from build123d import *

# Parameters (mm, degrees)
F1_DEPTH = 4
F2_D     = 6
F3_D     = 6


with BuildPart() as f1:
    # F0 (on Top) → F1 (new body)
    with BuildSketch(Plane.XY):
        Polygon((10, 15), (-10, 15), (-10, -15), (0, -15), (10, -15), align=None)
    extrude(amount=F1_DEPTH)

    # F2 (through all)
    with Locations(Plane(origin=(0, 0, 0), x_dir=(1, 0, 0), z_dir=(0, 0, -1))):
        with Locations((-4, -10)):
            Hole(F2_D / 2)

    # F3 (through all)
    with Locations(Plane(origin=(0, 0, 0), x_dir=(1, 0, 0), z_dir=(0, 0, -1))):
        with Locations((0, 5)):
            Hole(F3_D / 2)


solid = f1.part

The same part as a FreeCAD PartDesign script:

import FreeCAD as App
import Part
import Sketcher
Q = App.Units.Quantity


def add_polygon(sketch, points):
    """Adds a closed chain of lines whose ends are joined by coincident constraints."""
    first, n = sketch.GeometryCount, len(points)
    for a, b in zip(points, points[1:] + points[:1]):
        sketch.addGeometry(Part.LineSegment(App.Vector(*a, 0), App.Vector(*b, 0)), False)
    for i in range(n):
        sketch.addConstraint(Sketcher.Constraint("Coincident", first + i, 2, first + (i + 1) % n, 1))

doc = App.newDocument("Part")
body = doc.addObject("PartDesign::Body", "Body")

# Sketch on XY plane
sketch1 = body.newObject("Sketcher::SketchObject", "Sketch")
sketch1.AttachmentSupport = (doc.getObject("XY_Plane"), [""])
sketch1.MapMode = "FlatFace"
add_polygon(sketch1, [(10, 15), (-10, 15), (-10, -15), (10, -15)])  # lines 0-3
sketch1.addConstraint([
    Sketcher.Constraint("Horizontal", 0),
    Sketcher.Constraint("Vertical", 1),
    Sketcher.Constraint("Horizontal", 2),
    Sketcher.Constraint("Vertical", 3),
    Sketcher.Constraint("Symmetric", 0, 2, 2, 2, -1, 1),
    Sketcher.Constraint("DistanceX", 0, 2, 0, 1, Q("20 mm")),
    Sketcher.Constraint("DistanceY", 1, 2, 1, 1, Q("30 mm")),
])
pad1 = body.newObject("PartDesign::Pad", "Pad")
pad1.Profile = sketch1
pad1.Length = 4

# Sketch on XY plane
sketch2 = body.newObject("Sketcher::SketchObject", "Sketch001")
sketch2.AttachmentSupport = (doc.getObject("XY_Plane"), [""])
sketch2.MapMode = "FlatFace"
sketch2.addGeometry(Part.Circle(App.Vector(-4, 10, 0), App.Vector(0, 0, 1), 3), False)
sketch2.addConstraint([
    Sketcher.Constraint("Diameter", 0, Q("6 mm")),
    Sketcher.Constraint("DistanceX", 0, 3, -1, 1, Q("4 mm")),
    Sketcher.Constraint("DistanceY", -1, 1, 0, 3, Q("10 mm")),
])
doc.recompute()
hole = body.newObject("PartDesign::Hole", "Hole")
hole.Profile = sketch2
hole.ThreadType = "None"
hole.Diameter = 6
hole.DepthType = "ThroughAll"
hole.Reversed = True

# Sketch on XY plane
sketch3 = body.newObject("Sketcher::SketchObject", "Sketch002")
sketch3.AttachmentSupport = (doc.getObject("XY_Plane"), [""])
sketch3.MapMode = "FlatFace"
sketch3.addGeometry(Part.Circle(App.Vector(0, -5, 0), App.Vector(0, 0, 1), 3), False)
sketch3.addConstraint([
    Sketcher.Constraint("PointOnObject", 0, 3, -2),
    Sketcher.Constraint("Diameter", 0, Q("6 mm")),
    Sketcher.Constraint("DistanceY", 0, 3, -1, 1, Q("5 mm")),
])
doc.recompute()
hole2 = body.newObject("PartDesign::Hole", "Hole001")
hole2.Profile = sketch3
hole2.ThreadType = "None"
hole2.Diameter = 6
hole2.DepthType = "ThroughAll"
hole2.Reversed = True

doc.recompute()
